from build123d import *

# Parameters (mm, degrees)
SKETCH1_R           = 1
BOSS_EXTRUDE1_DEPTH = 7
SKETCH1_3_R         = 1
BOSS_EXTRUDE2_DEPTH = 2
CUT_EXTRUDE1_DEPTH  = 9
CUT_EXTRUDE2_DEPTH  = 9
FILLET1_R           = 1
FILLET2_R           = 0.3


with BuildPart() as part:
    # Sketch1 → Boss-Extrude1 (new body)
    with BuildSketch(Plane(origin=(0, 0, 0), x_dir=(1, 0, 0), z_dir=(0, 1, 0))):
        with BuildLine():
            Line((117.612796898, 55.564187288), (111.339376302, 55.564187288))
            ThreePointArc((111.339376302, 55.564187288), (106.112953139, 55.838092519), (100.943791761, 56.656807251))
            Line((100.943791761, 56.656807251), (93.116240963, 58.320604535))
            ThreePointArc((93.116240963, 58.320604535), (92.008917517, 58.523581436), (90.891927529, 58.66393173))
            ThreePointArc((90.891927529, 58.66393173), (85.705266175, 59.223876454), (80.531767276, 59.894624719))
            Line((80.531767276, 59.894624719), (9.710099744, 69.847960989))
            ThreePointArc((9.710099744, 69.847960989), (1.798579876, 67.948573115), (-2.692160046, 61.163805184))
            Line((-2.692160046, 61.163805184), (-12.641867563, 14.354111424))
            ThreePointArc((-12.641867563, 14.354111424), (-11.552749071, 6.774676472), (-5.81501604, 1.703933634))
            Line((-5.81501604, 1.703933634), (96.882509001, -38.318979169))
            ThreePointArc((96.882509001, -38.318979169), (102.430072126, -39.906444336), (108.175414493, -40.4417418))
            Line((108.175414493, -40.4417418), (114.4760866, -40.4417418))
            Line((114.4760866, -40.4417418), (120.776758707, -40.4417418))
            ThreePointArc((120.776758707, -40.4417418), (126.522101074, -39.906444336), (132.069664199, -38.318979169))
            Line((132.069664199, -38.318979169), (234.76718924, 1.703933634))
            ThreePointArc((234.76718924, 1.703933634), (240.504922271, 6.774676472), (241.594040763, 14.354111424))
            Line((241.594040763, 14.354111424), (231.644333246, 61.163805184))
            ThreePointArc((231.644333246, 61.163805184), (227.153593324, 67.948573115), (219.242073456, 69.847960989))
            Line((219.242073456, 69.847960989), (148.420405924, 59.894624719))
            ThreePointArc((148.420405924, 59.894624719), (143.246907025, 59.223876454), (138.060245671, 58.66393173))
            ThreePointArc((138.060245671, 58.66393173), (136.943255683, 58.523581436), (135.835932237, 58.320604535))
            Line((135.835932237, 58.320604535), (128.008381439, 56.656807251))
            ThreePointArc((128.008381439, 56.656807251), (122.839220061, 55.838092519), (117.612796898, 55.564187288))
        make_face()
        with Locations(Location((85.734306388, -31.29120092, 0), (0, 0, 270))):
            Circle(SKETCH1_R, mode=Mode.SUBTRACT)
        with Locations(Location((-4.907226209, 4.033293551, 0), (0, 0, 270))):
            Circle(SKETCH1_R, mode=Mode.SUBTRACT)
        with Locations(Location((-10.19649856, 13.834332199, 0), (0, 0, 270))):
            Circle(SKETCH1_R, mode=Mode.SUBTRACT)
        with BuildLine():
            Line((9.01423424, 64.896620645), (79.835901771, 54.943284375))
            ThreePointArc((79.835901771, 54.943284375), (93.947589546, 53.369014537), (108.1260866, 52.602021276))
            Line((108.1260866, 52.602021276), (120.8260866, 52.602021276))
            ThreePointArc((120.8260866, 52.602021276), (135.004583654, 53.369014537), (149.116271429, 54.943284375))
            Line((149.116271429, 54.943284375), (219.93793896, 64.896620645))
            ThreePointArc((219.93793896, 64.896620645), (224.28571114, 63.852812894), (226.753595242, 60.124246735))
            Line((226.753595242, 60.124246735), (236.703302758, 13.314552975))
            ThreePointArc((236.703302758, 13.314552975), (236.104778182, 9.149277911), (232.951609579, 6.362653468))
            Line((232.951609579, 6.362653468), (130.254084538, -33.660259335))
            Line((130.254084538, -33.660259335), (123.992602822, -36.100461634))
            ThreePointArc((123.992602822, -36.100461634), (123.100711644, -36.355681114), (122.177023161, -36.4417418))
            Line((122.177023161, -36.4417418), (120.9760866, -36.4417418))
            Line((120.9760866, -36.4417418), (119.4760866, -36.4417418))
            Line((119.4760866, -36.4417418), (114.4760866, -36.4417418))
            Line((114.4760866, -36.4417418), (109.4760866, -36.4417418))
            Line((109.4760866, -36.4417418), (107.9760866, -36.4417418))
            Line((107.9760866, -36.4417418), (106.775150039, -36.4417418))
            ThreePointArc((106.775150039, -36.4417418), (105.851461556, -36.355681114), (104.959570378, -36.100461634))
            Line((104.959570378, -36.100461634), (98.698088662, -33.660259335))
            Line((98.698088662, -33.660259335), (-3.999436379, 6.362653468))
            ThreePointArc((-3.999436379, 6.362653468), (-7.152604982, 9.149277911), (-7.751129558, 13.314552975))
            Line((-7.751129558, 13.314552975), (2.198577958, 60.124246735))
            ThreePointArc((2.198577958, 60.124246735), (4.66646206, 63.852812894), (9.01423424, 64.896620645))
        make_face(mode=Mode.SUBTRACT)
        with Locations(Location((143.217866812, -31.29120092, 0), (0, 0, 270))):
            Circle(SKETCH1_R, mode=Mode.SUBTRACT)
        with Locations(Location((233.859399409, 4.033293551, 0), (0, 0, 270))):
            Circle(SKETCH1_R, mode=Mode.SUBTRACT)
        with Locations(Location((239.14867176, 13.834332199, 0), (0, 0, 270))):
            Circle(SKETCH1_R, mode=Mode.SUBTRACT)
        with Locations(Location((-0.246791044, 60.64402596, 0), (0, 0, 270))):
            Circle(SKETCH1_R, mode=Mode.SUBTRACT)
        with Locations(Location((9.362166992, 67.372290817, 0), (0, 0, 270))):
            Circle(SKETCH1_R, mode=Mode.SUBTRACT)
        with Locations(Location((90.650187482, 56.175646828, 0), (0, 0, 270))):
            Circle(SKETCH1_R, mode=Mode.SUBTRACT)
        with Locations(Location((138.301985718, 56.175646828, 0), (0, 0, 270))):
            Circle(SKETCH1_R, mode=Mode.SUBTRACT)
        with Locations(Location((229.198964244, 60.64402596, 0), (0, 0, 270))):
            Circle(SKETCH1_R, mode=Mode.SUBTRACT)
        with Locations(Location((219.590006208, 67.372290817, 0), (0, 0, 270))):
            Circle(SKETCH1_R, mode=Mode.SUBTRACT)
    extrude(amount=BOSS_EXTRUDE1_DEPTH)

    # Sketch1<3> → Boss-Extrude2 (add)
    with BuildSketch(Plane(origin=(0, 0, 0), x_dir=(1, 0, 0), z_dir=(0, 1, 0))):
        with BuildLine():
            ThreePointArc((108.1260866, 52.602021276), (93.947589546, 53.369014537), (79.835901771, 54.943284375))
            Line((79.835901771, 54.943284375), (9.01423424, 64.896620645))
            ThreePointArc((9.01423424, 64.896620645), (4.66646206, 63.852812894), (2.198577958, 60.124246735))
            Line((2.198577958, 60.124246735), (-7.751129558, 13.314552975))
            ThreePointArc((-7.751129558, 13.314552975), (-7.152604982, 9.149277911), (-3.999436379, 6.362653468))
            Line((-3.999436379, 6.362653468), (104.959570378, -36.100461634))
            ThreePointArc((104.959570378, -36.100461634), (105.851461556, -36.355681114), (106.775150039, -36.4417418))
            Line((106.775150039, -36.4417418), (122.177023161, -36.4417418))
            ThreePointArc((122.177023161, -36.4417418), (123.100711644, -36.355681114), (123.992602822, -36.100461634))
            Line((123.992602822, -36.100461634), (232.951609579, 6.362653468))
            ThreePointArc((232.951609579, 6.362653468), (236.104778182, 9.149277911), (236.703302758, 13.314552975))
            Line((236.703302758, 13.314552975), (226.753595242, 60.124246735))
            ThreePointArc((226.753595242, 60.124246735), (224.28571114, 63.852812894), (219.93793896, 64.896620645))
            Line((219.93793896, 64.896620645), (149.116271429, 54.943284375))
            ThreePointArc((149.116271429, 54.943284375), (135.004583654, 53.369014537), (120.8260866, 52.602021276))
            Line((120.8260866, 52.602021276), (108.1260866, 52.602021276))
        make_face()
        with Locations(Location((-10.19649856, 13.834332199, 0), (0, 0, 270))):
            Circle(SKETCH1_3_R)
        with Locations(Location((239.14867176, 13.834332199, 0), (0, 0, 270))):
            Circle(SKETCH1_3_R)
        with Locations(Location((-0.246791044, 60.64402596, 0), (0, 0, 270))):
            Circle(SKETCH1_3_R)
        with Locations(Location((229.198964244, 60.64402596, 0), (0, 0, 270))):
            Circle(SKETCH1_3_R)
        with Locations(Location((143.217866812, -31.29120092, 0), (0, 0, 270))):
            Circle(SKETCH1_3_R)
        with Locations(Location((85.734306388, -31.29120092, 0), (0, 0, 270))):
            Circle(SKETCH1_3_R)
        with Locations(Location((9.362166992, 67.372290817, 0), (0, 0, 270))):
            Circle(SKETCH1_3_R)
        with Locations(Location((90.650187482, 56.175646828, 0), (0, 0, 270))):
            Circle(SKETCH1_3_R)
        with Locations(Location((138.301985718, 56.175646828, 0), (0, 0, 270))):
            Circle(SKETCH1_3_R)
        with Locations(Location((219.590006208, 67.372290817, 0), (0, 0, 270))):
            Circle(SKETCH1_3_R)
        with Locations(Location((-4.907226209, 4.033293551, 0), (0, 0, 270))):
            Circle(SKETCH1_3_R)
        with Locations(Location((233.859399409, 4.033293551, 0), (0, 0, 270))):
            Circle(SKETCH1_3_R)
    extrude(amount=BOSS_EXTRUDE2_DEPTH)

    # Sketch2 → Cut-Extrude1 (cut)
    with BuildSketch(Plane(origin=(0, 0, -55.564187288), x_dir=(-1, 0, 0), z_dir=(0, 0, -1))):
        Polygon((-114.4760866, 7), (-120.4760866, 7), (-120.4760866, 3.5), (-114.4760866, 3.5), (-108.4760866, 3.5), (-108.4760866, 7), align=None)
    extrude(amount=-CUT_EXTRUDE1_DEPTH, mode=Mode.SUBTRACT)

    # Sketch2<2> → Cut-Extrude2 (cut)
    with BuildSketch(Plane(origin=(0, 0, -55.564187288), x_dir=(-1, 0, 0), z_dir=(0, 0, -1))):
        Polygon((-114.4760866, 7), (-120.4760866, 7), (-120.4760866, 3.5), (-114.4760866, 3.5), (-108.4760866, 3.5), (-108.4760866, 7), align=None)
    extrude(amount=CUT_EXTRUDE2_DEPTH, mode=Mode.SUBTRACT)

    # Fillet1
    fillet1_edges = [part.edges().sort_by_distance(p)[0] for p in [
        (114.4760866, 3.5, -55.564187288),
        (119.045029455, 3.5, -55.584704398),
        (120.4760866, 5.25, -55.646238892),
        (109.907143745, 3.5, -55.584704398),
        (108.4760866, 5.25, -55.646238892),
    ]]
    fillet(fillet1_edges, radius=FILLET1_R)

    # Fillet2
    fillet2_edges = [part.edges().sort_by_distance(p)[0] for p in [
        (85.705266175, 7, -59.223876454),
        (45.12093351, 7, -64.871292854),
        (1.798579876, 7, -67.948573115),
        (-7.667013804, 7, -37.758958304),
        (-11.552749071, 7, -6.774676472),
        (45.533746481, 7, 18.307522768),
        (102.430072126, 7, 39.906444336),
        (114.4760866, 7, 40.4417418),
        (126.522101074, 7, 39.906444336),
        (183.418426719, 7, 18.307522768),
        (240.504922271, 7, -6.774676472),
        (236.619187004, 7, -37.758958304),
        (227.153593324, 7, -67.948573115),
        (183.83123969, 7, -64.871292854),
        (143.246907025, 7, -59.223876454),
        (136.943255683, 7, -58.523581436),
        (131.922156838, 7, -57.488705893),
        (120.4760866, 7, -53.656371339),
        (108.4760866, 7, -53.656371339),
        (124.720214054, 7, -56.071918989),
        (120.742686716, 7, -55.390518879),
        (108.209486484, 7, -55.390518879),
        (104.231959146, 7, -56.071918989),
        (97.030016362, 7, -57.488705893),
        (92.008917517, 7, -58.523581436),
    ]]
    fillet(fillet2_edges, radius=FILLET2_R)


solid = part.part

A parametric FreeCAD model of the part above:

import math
import FreeCAD as App
import Part
import Sketcher

V = App.Vector
Q = App.Units.Quantity


def edges_at(feature, points):
    """Names of the edges that pass closest to the given points."""
    edges = feature.Shape.Edges
    near = lambda p: min(range(len(edges)), key=lambda i: edges[i].distToShape(Part.Vertex(*p))[0])
    return sorted({f"Edge{near(p) + 1}" for p in points})

doc = App.newDocument("Part")
body = doc.addObject("PartDesign::Body", "Body")

# Sketch on XZ plane
sketch1 = body.newObject("Sketcher::SketchObject", "Sketch")
sketch1.AttachmentSupport = (doc.getObject("XZ_Plane"), [""])
sketch1.MapMode = "FlatFace"
sketch1.addGeometry([
    Part.LineSegment(V(117.6, -55.6, 0), V(111.3, -55.6, 0)),  # 0
    Part.ArcOfCircle(Part.Circle(V(111.3, -105.6, 0), V(0, 0, 1), 50), math.radians(90), math.radians(102)),  # 1
    Part.LineSegment(V(100.9, -56.7, 0), V(93.1, -58.3, 0)),  # 2
    Part.ArcOfCircle(Part.Circle(V(89, -38.8, 0), V(0, 0, 1), 20), math.radians(-84.45), math.radians(-78)),  # 3
    Part.ArcOfCircle(Part.Circle(V(114.5, -301.4, 0), V(0, 0, 1), 243.9), math.radians(95.55), math.radians(98)),  # 4
    Part.LineSegment(V(80.5, -59.9, 0), V(9.7, -69.8, 0)),  # 5
    Part.ArcOfCircle(Part.Circle(V(8.2, -58.9, 0), V(0, 0, 1), 11.1), math.radians(-168), math.radians(-82)),  # 6
    Part.LineSegment(V(-2.7, -61.2, 0), V(-12.6, -14.4, 0)),  # 7
    Part.ArcOfCircle(Part.Circle(V(-1.8, -12, 0), V(0, 0, 1), 11.1), math.radians(111), math.radians(192)),  # 8
    Part.LineSegment(V(-5.8, -1.7, 0), V(96.9, 38.3, 0)),  # 9
    Part.ArcOfCircle(Part.Circle(V(108.2, 9.3, 0), V(0, 0, 1), 31.1), math.radians(90), math.radians(111)),  # 10
    Part.LineSegment(V(108.2, 40.4, 0), V(120.8, 40.4, 0)),  # 11
    Part.ArcOfCircle(Part.Circle(V(120.8, 9.3, 0), V(0, 0, 1), 31.1), math.radians(69), math.radians(90)),  # 12
    Part.LineSegment(V(132.1, 38.3, 0), V(234.8, -1.7, 0)),  # 13
    Part.ArcOfCircle(Part.Circle(V(230.7, -12, 0), V(0, 0, 1), 11.1), math.radians(-12), math.radians(69)),  # 14
    Part.LineSegment(V(241.6, -14.4, 0), V(231.6, -61.2, 0)),  # 15
    Part.ArcOfCircle(Part.Circle(V(220.8, -58.9, 0), V(0, 0, 1), 11.1), math.radians(-98), math.radians(-12)),  # 16
    Part.LineSegment(V(219.2, -69.8, 0), V(148.4, -59.9, 0)),  # 17
    Part.ArcOfCircle(Part.Circle(V(114.5, -301.4, 0), V(0, 0, 1), 243.9), math.radians(82), math.radians(84.45)),  # 18
    Part.ArcOfCircle(Part.Circle(V(140, -38.8, 0), V(0, 0, 1), 20), math.radians(-102), math.radians(-95.55)),  # 19
    Part.LineSegment(V(135.8, -58.3, 0), V(128, -56.7, 0)),  # 20
    Part.ArcOfCircle(Part.Circle(V(117.6, -105.6, 0), V(0, 0, 1), 50), math.radians(78), math.radians(90)),  # 21
    Part.Circle(V(85.7, 31.3, 0), V(0, 0, 1), 1),  # 22
    Part.Circle(V(-4.9, -4, 0), V(0, 0, 1), 1),  # 23
    Part.Circle(V(-10.2, -13.8, 0), V(0, 0, 1), 1),  # 24
    Part.ArcOfCircle(Part.Circle(V(8.2, -58.9, 0), V(0, 0, 1), 6.1), math.radians(-168), math.radians(-82)),  # 25
    Part.LineSegment(V(9, -64.9, 0), V(79.8, -54.9, 0)),  # 26
    Part.ArcOfCircle(Part.Circle(V(114.5, -301.4, 0), V(0, 0, 1), 248.9), math.radians(91.46), math.radians(98)),  # 27
    Part.LineSegment(V(108.1, -52.6, 0), V(120.8, -52.6, 0)),  # 28
    Part.ArcOfCircle(Part.Circle(V(114.5, -301.4, 0), V(0, 0, 1), 248.9), math.radians(82), math.radians(88.54)),  # 29
    Part.LineSegment(V(149.1, -54.9, 0), V(219.9, -64.9, 0)),  # 30
    Part.ArcOfCircle(Part.Circle(V(220.8, -58.9, 0), V(0, 0, 1), 6.1), math.radians(-98), math.radians(-12)),  # 31
    Part.LineSegment(V(226.8, -60.1, 0), V(236.7, -13.3, 0)),  # 32
    Part.ArcOfCircle(Part.Circle(V(230.7, -12, 0), V(0, 0, 1), 6.1), math.radians(-12), math.radians(69)),  # 33
    Part.LineSegment(V(233, -6.4, 0), V(130.3, 33.7, 0)),  # 34
    Part.LineSegment(V(130.3, 33.7, 0), V(124, 36.1, 0)),  # 35
    Part.ArcOfCircle(Part.Circle(V(122.2, 31.4, 0), V(0, 0, 1), 5), math.radians(69), math.radians(90)),  # 36
    Part.LineSegment(V(122.2, 36.4, 0), V(106.8, 36.4, 0)),  # 37
    Part.ArcOfCircle(Part.Circle(V(106.8, 31.4, 0), V(0, 0, 1), 5), math.radians(90), math.radians(111)),  # 38
    Part.LineSegment(V(105, 36.1, 0), V(98.7, 33.7, 0)),  # 39
    Part.LineSegment(V(98.7, 33.7, 0), V(-4, -6.4, 0)),  # 40
    Part.ArcOfCircle(Part.Circle(V(-1.8, -12, 0), V(0, 0, 1), 6.1), math.radians(111), math.radians(192)),  # 41
    Part.LineSegment(V(-7.8, -13.3, 0), V(2.2, -60.1, 0)),  # 42
    Part.Circle(V(143.2, 31.3, 0), V(0, 0, 1), 1),  # 43
    Part.Circle(V(233.9, -4, 0), V(0, 0, 1), 1),  # 44
    Part.Circle(V(239.1, -13.8, 0), V(0, 0, 1), 1),  # 45
    Part.Circle(V(-0.2, -60.6, 0), V(0, 0, 1), 1),  # 46
    Part.Circle(V(9.4, -67.4, 0), V(0, 0, 1), 1),  # 47
    Part.Circle(V(90.7, -56.2, 0), V(0, 0, 1), 1),  # 48
    Part.Circle(V(138.3, -56.2, 0), V(0, 0, 1), 1),  # 49
    Part.Circle(V(229.2, -60.6, 0), V(0, 0, 1), 1),  # 50
    Part.Circle(V(219.6, -67.4, 0), V(0, 0, 1), 1),  # 51
], False)
sketch1.addConstraint([
    Sketcher.Constraint("Tangent", 0, 2, 1, 1),
    Sketcher.Constraint("Tangent", 1, 2, 2, 1),
    Sketcher.Constraint("Tangent", 2, 2, 3, 2),
    Sketcher.Constraint("Tangent", 3, 1, 4, 1),
    Sketcher.Constraint("Tangent", 4, 2, 5, 1),
    Sketcher.Constraint("Tangent", 5, 2, 6, 2),
    Sketcher.Constraint("Tangent", 6, 1, 7, 1),
    Sketcher.Constraint("Tangent", 7, 2, 8, 2),
    Sketcher.Constraint("Tangent", 8, 1, 9, 1),
    Sketcher.Constraint("Tangent", 9, 2, 10, 2),
    Sketcher.Constraint("Tangent", 10, 1, 11, 1),
    Sketcher.Constraint("Tangent", 11, 2, 12, 2),
    Sketcher.Constraint("Tangent", 12, 1, 13, 1),
    Sketcher.Constraint("Tangent", 13, 2, 14, 2),
    Sketcher.Constraint("Tangent", 14, 1, 15, 1),
    Sketcher.Constraint("Tangent", 15, 2, 16, 2),
    Sketcher.Constraint("Tangent", 16, 1, 17, 1),
    Sketcher.Constraint("Tangent", 17, 2, 18, 1),
    Sketcher.Constraint("Tangent", 18, 2, 19, 2),
    Sketcher.Constraint("Tangent", 19, 1, 20, 1),
    Sketcher.Constraint("Tangent", 20, 2, 21, 1),
    Sketcher.Constraint("Tangent", 21, 2, 0, 1),
    Sketcher.Constraint("Tangent", 25, 2, 26, 1),
    Sketcher.Constraint("Tangent", 26, 2, 27, 2),
    Sketcher.Constraint("Coincident", 27, 1, 28, 1),
    Sketcher.Constraint("Coincident", 28, 2, 29, 2),
    Sketcher.Constraint("Tangent", 29, 1, 30, 1),
    Sketcher.Constraint("Tangent", 30, 2, 31, 1),
    Sketcher.Constraint("Tangent", 31, 2, 32, 1),
    Sketcher.Constraint("Tangent", 32, 2, 33, 1),
    Sketcher.Constraint("Tangent", 33, 2, 34, 1),
    Sketcher.Constraint("Coincident", 34, 2, 35, 1),
    Sketcher.Constraint("Tangent", 35, 2, 36, 1),
    Sketcher.Constraint("Tangent", 36, 2, 37, 1),
    Sketcher.Constraint("Tangent", 37, 2, 38, 1),
    Sketcher.Constraint("Tangent", 38, 2, 39, 1),
    Sketcher.Constraint("Coincident", 39, 2, 40, 1),
    Sketcher.Constraint("Tangent", 40, 2, 41, 1),
    Sketcher.Constraint("Tangent", 41, 2, 42, 1),
    Sketcher.Constraint("Tangent", 42, 2, 25, 1),
    Sketcher.Constraint("Horizontal", 0),
    Sketcher.Constraint("Horizontal", 11),
    Sketcher.Constraint("Horizontal", 28),
    Sketcher.Constraint("Horizontal", 37),
    Sketcher.Constraint("Coincident", 18, 3, 4, 3),
    Sketcher.Constraint("Coincident", 25, 3, 6, 3),
    Sketcher.Constraint("Coincident", 27, 3, 4, 3),
    Sketcher.Constraint("Coincident", 29, 3, 4, 3),
    Sketcher.Constraint("Coincident", 31, 3, 16, 3),
    Sketcher.Constraint("Coincident", 33, 3, 14, 3),
    Sketcher.Constraint("Coincident", 41, 3, 8, 3),
    Sketcher.Constraint("Equal", 6, 8),
    Sketcher.Constraint("Equal", 10, 12),
    Sketcher.Constraint("Equal", 8, 14),
    Sketcher.Constraint("Equal", 14, 16),
    Sketcher.Constraint("Equal", 4, 18),
    Sketcher.Constraint("Equal", 3, 19),
    Sketcher.Constraint("Equal", 1, 21),
    Sketcher.Constraint("Equal", 22, 23),
    Sketcher.Constraint("Equal", 23, 24),
    Sketcher.Constraint("Equal", 27, 29),
    Sketcher.Constraint("Equal", 25, 31),
    Sketcher.Constraint("Equal", 31, 33),
    Sketcher.Constraint("Equal", 36, 38),
    Sketcher.Constraint("Equal", 33, 41),
    Sketcher.Constraint("Equal", 24, 43),
    Sketcher.Constraint("Equal", 43, 44),
    Sketcher.Constraint("Equal", 44, 45),
    Sketcher.Constraint("Equal", 45, 46),
    Sketcher.Constraint("Equal", 46, 47),
    Sketcher.Constraint("Equal", 47, 48),
    Sketcher.Constraint("Equal", 48, 49),
    Sketcher.Constraint("Equal", 49, 50),
    Sketcher.Constraint("Equal", 50, 51),
    Sketcher.Constraint("Perpendicular", 2, 7),
    Sketcher.Constraint("Perpendicular", 15, 20),
    Sketcher.Constraint("Parallel", 5, 26),
    Sketcher.Constraint("Parallel", 13, 34),
    Sketcher.Constraint("Parallel", 34, 35),
    Sketcher.Constraint("Parallel", 9, 39),
    Sketcher.Constraint("Parallel", 39, 40),
    Sketcher.Constraint("Horizontal", 8, 3, 14, 3),
    Sketcher.Constraint("Horizontal", 6, 3, 16, 3),
    Sketcher.Constraint("Horizontal", 3, 3, 19, 3),
    Sketcher.Constraint("Horizontal", 22, 3, 43, 3),
    Sketcher.Constraint("Horizontal", 23, 3, 44, 3),
    Sketcher.Constraint("Horizontal", 24, 3, 45, 3),
    Sketcher.Constraint("Horizontal", 48, 3, 49, 3),
    Sketcher.Constraint("Horizontal", 46, 3, 50, 3),
    Sketcher.Constraint("Horizontal", 47, 3, 51, 3),
    Sketcher.Constraint("Horizontal", 9, 2, 12, 1),
    Sketcher.Constraint("Horizontal", 7, 2, 14, 1),
    Sketcher.Constraint("Horizontal", 34, 2, 39, 2),
    Sketcher.Constraint("Equal", 5, 17),
    Sketcher.Constraint("Equal", 13, 34),
    Sketcher.Constraint("Diameter", 22, 2.0),
    Sketcher.Constraint("Radius", 1, 50.0),
    Sketcher.Constraint("Radius", 3, 20.0),
    Sketcher.Constraint("Radius", 36, 5.0),
    Sketcher.Constraint("Radius", 4, 243.899998),
    Sketcher.Constraint("Radius", 6, 11.1),
    Sketcher.Constraint("Radius", 10, 31.1),
    Sketcher.Constraint("Radius", 25, 6.1),
    Sketcher.Constraint("Angle", 2, Q("-168 deg")),
    Sketcher.Constraint("Angle", 5, Q("-172 deg")),
    Sketcher.Constraint("DistanceX", 28, 1, 28, 2, 12.7),
    Sketcher.Constraint("DistanceX", 0, 2, 0, 1, 6.273421),
    Sketcher.Constraint("DistanceY", -1, 1, 22, 3, 31.291201),
    Sketcher.Constraint("DistanceX", 24, 3, -1, 1, 10.196499),
    Sketcher.Constraint("DistanceX", -1, 1, 44, 3, 233.859399),
    Sketcher.Constraint("DistanceX", -1, 1, 5, 2, 9.7101),
    Sketcher.Constraint("DistanceX", -1, 1, 26, 2, 79.835902),
    Sketcher.Constraint("Distance", 7, 47.85545),
    Sketcher.Constraint("DistanceX", 11, 1, 11, 2, 12.601344),
    Sketcher.Constraint("DistanceX", 37, 2, 37, 1, 15.401873),
    Sketcher.Constraint("DistanceY", 8, 3, -1, 1, 12.046292),
    Sketcher.Constraint("DistanceY", -1, 1, 10, 3, 9.341742),
    Sketcher.Constraint("DistanceX", -1, 1, 45, 3, 239.148672),
    Sketcher.Constraint("DistanceX", 46, 3, -1, 1, 0.246791),
    Sketcher.Constraint("DistanceY", 47, 3, -1, 1, 67.372291),
    Sketcher.Constraint("DistanceX", -1, 1, 2, 2, 93.116241),
    Sketcher.Constraint("DistanceX", -1, 1, 22, 3, 85.734306),
    Sketcher.Constraint("DistanceX", 23, 3, -1, 1, 4.907226),
    Sketcher.Constraint("DistanceY", 23, 3, -1, 1, 4.033294),
    Sketcher.Constraint("DistanceY", 24, 3, -1, 1, 13.834332),
    Sketcher.Constraint("DistanceX", -1, 1, 43, 3, 143.217867),
    Sketcher.Constraint("DistanceY", 46, 3, -1, 1, 60.644026),
    Sketcher.Constraint("DistanceX", -1, 1, 47, 3, 9.362167),
    Sketcher.Constraint("DistanceX", -1, 1, 48, 3, 90.650187),
    Sketcher.Constraint("DistanceY", 48, 3, -1, 1, 56.175647),
    Sketcher.Constraint("DistanceX", -1, 1, 49, 3, 138.301986),
    Sketcher.Constraint("DistanceX", -1, 1, 50, 3, 229.198964),
    Sketcher.Constraint("DistanceX", -1, 1, 51, 3, 219.590006),
])
pad1 = body.newObject("PartDesign::Pad", "Pad")
pad1.Profile = sketch1
pad1.Length = 7
pad1.Reversed = True

# Sketch on XZ plane
sketch2 = body.newObject("Sketcher::SketchObject", "Sketch001")
sketch2.AttachmentSupport = (doc.getObject("XZ_Plane"), [""])
sketch2.MapMode = "FlatFace"
sketch2.addGeometry([
    Part.ArcOfCircle(Part.Circle(V(114.476087, -301.421007, 0), V(0, 0, 1), 248.9), math.radians(91.461903), math.radians(98)),  # 0
    Part.LineSegment(V(79.835902, -54.943284, 0), V(9.014234, -64.896621, 0)),  # 1
    Part.ArcOfCircle(Part.Circle(V(8.165278, -58.855985, 0), V(0, 0, 1), 6.1), math.radians(-168), math.radians(-82)),  # 2
    Part.LineSegment(V(2.198578, -60.124247, 0), V(-7.75113, -13.314553, 0)),  # 3
    Part.ArcOfCircle(Part.Circle(V(-1.784429, -12.046292, 0), V(0, 0, 1), 6.1), math.radians(111.29168), math.radians(192)),  # 4
    Part.LineSegment(V(-3.999436, -6.362653, 0), V(104.95957, 36.100462, 0)),  # 5
    Part.ArcOfCircle(Part.Circle(V(106.77515, 31.441742, 0), V(0, 0, 1), 5), math.radians(90), math.radians(111.29168)),  # 6
    Part.LineSegment(V(106.77515, 36.441742, 0), V(122.177023, 36.441742, 0)),  # 7
    Part.ArcOfCircle(Part.Circle(V(122.177023, 31.441742, 0), V(0, 0, 1), 5), math.radians(68.70832), math.radians(90)),  # 8
    Part.LineSegment(V(123.992603, 36.100462, 0), V(232.95161, -6.362653, 0)),  # 9
    Part.ArcOfCircle(Part.Circle(V(230.736602, -12.046292, 0), V(0, 0, 1), 6.1), math.radians(-12), math.radians(68.70832)),  # 10
    Part.LineSegment(V(236.703303, -13.314553, 0), V(226.753595, -60.124247, 0)),  # 11
    Part.ArcOfCircle(Part.Circle(V(220.786895, -58.855985, 0), V(0, 0, 1), 6.1), math.radians(-98), math.radians(-12)),  # 12
    Part.LineSegment(V(219.937939, -64.896621, 0), V(149.116271, -54.943284, 0)),  # 13
    Part.ArcOfCircle(Part.Circle(V(114.476087, -301.421007, 0), V(0, 0, 1), 248.9), math.radians(82), math.radians(88.538097)),  # 14
    Part.LineSegment(V(120.826087, -52.602021, 0), V(108.126087, -52.602021, 0)),  # 15
    Part.Circle(V(-10.196499, -13.834332, 0), V(0, 0, 1), 1),  # 16
    Part.Circle(V(239.148672, -13.834332, 0), V(0, 0, 1), 1),  # 17
    Part.Circle(V(-0.246791, -60.644026, 0), V(0, 0, 1), 1),  # 18
    Part.Circle(V(229.198964, -60.644026, 0), V(0, 0, 1), 1),  # 19
    Part.Circle(V(143.217867, 31.291201, 0), V(0, 0, 1), 1),  # 20
    Part.Circle(V(85.734306, 31.291201, 0), V(0, 0, 1), 1),  # 21
    Part.Circle(V(9.362167, -67.372291, 0), V(0, 0, 1), 1),  # 22
    Part.Circle(V(90.650187, -56.175647, 0), V(0, 0, 1), 1),  # 23
    Part.Circle(V(138.301986, -56.175647, 0), V(0, 0, 1), 1),  # 24
    Part.Circle(V(219.590006, -67.372291, 0), V(0, 0, 1), 1),  # 25
    Part.Circle(V(-4.907226, -4.033294, 0), V(0, 0, 1), 1),  # 26
    Part.Circle(V(233.859399, -4.033294, 0), V(0, 0, 1), 1),  # 27
], False)
sketch2.addConstraint([
    Sketcher.Constraint("Coincident", 0, 2, 1, 1),
    Sketcher.Constraint("Coincident", 1, 2, 2, 2),
    Sketcher.Constraint("Coincident", 2, 1, 3, 1),
    Sketcher.Constraint("Coincident", 3, 2, 4, 2),
    Sketcher.Constraint("Coincident", 4, 1, 5, 1),
    Sketcher.Constraint("Coincident", 5, 2, 6, 2),
    Sketcher.Constraint("Coincident", 6, 1, 7, 1),
    Sketcher.Constraint("Coincident", 7, 2, 8, 2),
    Sketcher.Constraint("Coincident", 8, 1, 9, 1),
    Sketcher.Constraint("Coincident", 9, 2, 10, 2),
    Sketcher.Constraint("Coincident", 10, 1, 11, 1),
    Sketcher.Constraint("Coincident", 11, 2, 12, 2),
    Sketcher.Constraint("Coincident", 12, 1, 13, 1),
    Sketcher.Constraint("Coincident", 13, 2, 14, 1),
    Sketcher.Constraint("Coincident", 14, 2, 15, 1),
    Sketcher.Constraint("Coincident", 15, 2, 0, 1),
    Sketcher.Constraint("Horizontal", 7),
    Sketcher.Constraint("Horizontal", 15),
    Sketcher.Constraint("Coincident", 14, 3, 0, 3),
    Sketcher.Constraint("Diameter", 16, 2.0),
    Sketcher.Constraint("Diameter", 17, 2.0),
    Sketcher.Constraint("Diameter", 18, 2.0),
    Sketcher.Constraint("Diameter", 19, 2.0),
    Sketcher.Constraint("Diameter", 20, 2.0),
    Sketcher.Constraint("Diameter", 21, 2.0),
    Sketcher.Constraint("Diameter", 22, 2.0),
    Sketcher.Constraint("Diameter", 23, 2.0),
    Sketcher.Constraint("Diameter", 24, 2.0),
    Sketcher.Constraint("Diameter", 25, 2.0),
    Sketcher.Constraint("Diameter", 26, 2.0),
    Sketcher.Constraint("Diameter", 27, 2.0),
    Sketcher.Constraint("Radius", 6, 5.0),
    Sketcher.Constraint("Radius", 8, 5.0),
    Sketcher.Constraint("Radius", 0, 248.9),
    Sketcher.Constraint("Radius", 2, 6.1),
    Sketcher.Constraint("Radius", 4, 6.1),
    Sketcher.Constraint("Radius", 10, 6.1),
    Sketcher.Constraint("Radius", 12, 6.1),
    Sketcher.Constraint("Radius", 14, 248.9),
    Sketcher.Constraint("DistanceX", 15, 2, 15, 1, 12.7),
    Sketcher.Constraint("DistanceY", 22, 3, 4, 3, 55.325999),
    Sketcher.Constraint("DistanceY", 25, 3, 10, 3, 55.325999),
    Sketcher.Constraint("DistanceY", 4, 3, 26, 3, 8.012998),
    Sketcher.Constraint("DistanceY", 10, 3, 27, 3, 8.012998),
    Sketcher.Constraint("DistanceX", 16, 3, -1, 1, 10.196499),
    Sketcher.Constraint("DistanceY", -1, 1, 20, 3, 31.291201),
    Sketcher.Constraint("DistanceY", -1, 1, 21, 3, 31.291201),
    Sketcher.Constraint("DistanceX", -1, 1, 27, 3, 233.859399),
    Sketcher.Constraint("DistanceX", -1, 1, 0, 2, 79.835902),
    Sketcher.Constraint("DistanceX", 23, 3, 24, 3, 47.651798),
    Sketcher.Constraint("DistanceY", 2, 3, 0, 2, 3.912701),
    Sketcher.Constraint("DistanceX", 2, 1, 2, 3, 5.9667),
    Sketcher.Constraint("DistanceX", 3, 2, 4, 3, 5.9667),
    Sketcher.Constraint("DistanceY", 3, 2, 4, 1, 6.9519),
    Sketcher.Constraint("DistanceX", 10, 3, 10, 1, 5.9667),
    Sketcher.Constraint("DistanceY", 10, 1, 9, 2, 6.9519),
    Sketcher.Constraint("DistanceX", 12, 3, 11, 2, 5.9667),
    Sketcher.Constraint("DistanceX", 14, 2, 24, 3, 17.475899),
    Sketcher.Constraint("Distance", 3, 47.85545),
    Sketcher.Constraint("Distance", 5, 116.940931),
    Sketcher.Constraint("Distance", 9, 116.940931),
    Sketcher.Constraint("Distance", 11, 47.85545),
    Sketcher.Constraint("DistanceX", 7, 1, 7, 2, 15.401873),
    Sketcher.Constraint("DistanceX", -1, 1, 2, 3, 8.165278),
    Sketcher.Constraint("DistanceX", 4, 3, -1, 1, 1.784429),
    Sketcher.Constraint("DistanceY", 4, 3, -1, 1, 12.046292),
    Sketcher.Constraint("DistanceX", -1, 1, 6, 3, 106.77515),
    Sketcher.Constraint("DistanceY", -1, 1, 6, 3, 31.441742),
    Sketcher.Constraint("DistanceY", 10, 3, -1, 1, 12.046292),
    Sketcher.Constraint("DistanceX", -1, 1, 17, 3, 239.148672),
    Sketcher.Constraint("DistanceX", 18, 3, -1, 1, 0.246791),
    Sketcher.Constraint("DistanceY", 1, 2, -1, 1, 64.896621),
    Sketcher.Constraint("DistanceX", -1, 1, 6, 1, 106.77515),
    Sketcher.Constraint("DistanceY", -1, 1, 8, 1, 36.100462),
    Sketcher.Constraint("DistanceX", -1, 1, 9, 2, 232.95161),
    Sketcher.Constraint("DistanceX", -1, 1, 12, 1, 219.937939),
    Sketcher.Constraint("DistanceY", 12, 1, -1, 1, 64.896621),
    Sketcher.Constraint("DistanceX", -1, 1, 13, 2, 149.116271),
    Sketcher.Constraint("DistanceY", 14, 2, -1, 1, 52.602021),
    Sketcher.Constraint("DistanceY", 16, 3, 4, 3, 1.788041),
    Sketcher.Constraint("DistanceY", 17, 3, 10, 3, 1.788041),
    Sketcher.Constraint("DistanceY", 18, 3, 2, 3, 1.788041),
    Sketcher.Constraint("DistanceX", 12, 3, 19, 3, 8.412069),
    Sketcher.Constraint("DistanceY", 19, 3, 12, 3, 1.788041),
    Sketcher.Constraint("DistanceX", 20, 3, 12, 3, 77.569028),
    Sketcher.Constraint("DistanceX", 21, 3, 20, 3, 57.48356),
    Sketcher.Constraint("DistanceX", 2, 3, 22, 3, 1.196889),
    Sketcher.Constraint("DistanceY", 2, 3, 23, 3, 2.680339),
    Sketcher.Constraint("DistanceY", 12, 3, 24, 3, 2.680339),
    Sketcher.Constraint("DistanceX", 25, 3, 12, 3, 1.196889),
    Sketcher.Constraint("DistanceX", 26, 3, 4, 1, 0.90779),
])
pad2 = body.newObject("PartDesign::Pad", "Pad001")
pad2.Profile = sketch2
pad2.Length = 2
pad2.Reversed = True

# Sketch on XY plane
sketch3 = body.newObject("Sketcher::SketchObject", "Sketch002")
sketch3.AttachmentSupport = (doc.getObject("XY_Plane"), [""])
sketch3.MapMode = "FlatFace"
sketch3.AttachmentOffset = App.Placement(V(0, 0, -55.564187), App.Rotation())
sketch3.addGeometry([
    Part.LineSegment(V(120.5, 7, 0), V(120.5, 3.5, 0)),
    Part.LineSegment(V(120.5, 3.5, 0), V(108.5, 3.5, 0)),
    Part.LineSegment(V(108.5, 3.5, 0), V(108.5, 7, 0)),
    Part.LineSegment(V(108.5, 7, 0), V(120.5, 7, 0)),
], False)
sketch3.addConstraint([
    Sketcher.Constraint("Coincident", 0, 2, 1, 1),
    Sketcher.Constraint("Coincident", 1, 2, 2, 1),
    Sketcher.Constraint("Coincident", 2, 2, 3, 1),
    Sketcher.Constraint("Coincident", 3, 2, 0, 1),
    Sketcher.Constraint("Vertical", 0),
    Sketcher.Constraint("Horizontal", 1),
    Sketcher.Constraint("Vertical", 2),
    Sketcher.Constraint("Horizontal", 3),
    Sketcher.Constraint("DistanceX", 1, 2, 1, 1, 12.0),
    Sketcher.Constraint("DistanceY", 0, 2, 0, 1, 3.5),
    Sketcher.Constraint("DistanceY", -1, 1, 2, 2, 7.0),
    Sketcher.Constraint("DistanceX", -1, 1, 0, 2, 120.476087),
])
pocket1 = body.newObject("PartDesign::Pocket", "Pocket")
pocket1.Profile = sketch3
pocket1.Length = 9
pocket1.Reversed = True

# Sketch on XY plane
sketch4 = body.newObject("Sketcher::SketchObject", "Sketch003")
sketch4.AttachmentSupport = (doc.getObject("XY_Plane"), [""])
sketch4.MapMode = "FlatFace"
sketch4.AttachmentOffset = App.Placement(V(0, 0, -55.564187), App.Rotation())
sketch4.addGeometry([
    Part.LineSegment(V(120.5, 7, 0), V(120.5, 3.5, 0)),
    Part.LineSegment(V(120.5, 3.5, 0), V(108.5, 3.5, 0)),
    Part.LineSegment(V(108.5, 3.5, 0), V(108.5, 7, 0)),
    Part.LineSegment(V(108.5, 7, 0), V(120.5, 7, 0)),
], False)
sketch4.addConstraint([
    Sketcher.Constraint("Coincident", 0, 2, 1, 1),
    Sketcher.Constraint("Coincident", 1, 2, 2, 1),
    Sketcher.Constraint("Coincident", 2, 2, 3, 1),
    Sketcher.Constraint("Coincident", 3, 2, 0, 1),
    Sketcher.Constraint("Vertical", 0),
    Sketcher.Constraint("Horizontal", 1),
    Sketcher.Constraint("Vertical", 2),
    Sketcher.Constraint("Horizontal", 3),
    Sketcher.Constraint("DistanceX", 1, 2, 1, 1, 12.0),
    Sketcher.Constraint("DistanceY", 0, 2, 0, 1, 3.5),
    Sketcher.Constraint("DistanceY", -1, 1, 2, 2, 7.0),
    Sketcher.Constraint("DistanceX", -1, 1, 0, 2, 120.476087),
])
pocket2 = body.newObject("PartDesign::Pocket", "Pocket001")
pocket2.Profile = sketch4
pocket2.Length = 9
doc.recompute()

fillet = body.newObject("PartDesign::Fillet", "Fillet")
fillet.Base = (pocket2, edges_at(pocket2, [
    (114.476, 3.5, -55.564),
    (119.045, 3.5, -55.585),
    (120.476, 5.25, -55.646),
    (109.907, 3.5, -55.585),
    (108.476, 5.25, -55.646),
]))
fillet.Radius = 1
doc.recompute()

fillet2 = body.newObject("PartDesign::Fillet", "Fillet001")
fillet2.Base = (fillet, edges_at(fillet, [
    (85.705, 7, -59.224),
    (45.121, 7, -64.871),
    (1.799, 7, -67.949),
    (-7.667, 7, -37.759),
    (-11.553, 7, -6.775),
    (45.534, 7, 18.308),
    (102.43, 7, 39.906),
    (114.476, 7, 40.442),
    (126.522, 7, 39.906),
    (183.418, 7, 18.308),
    (240.505, 7, -6.775),
    (236.619, 7, -37.759),
    (227.154, 7, -67.949),
    (183.831, 7, -64.871),
    (143.247, 7, -59.224),
    (136.943, 7, -58.524),
    (131.922, 7, -57.489),
    (120.476, 7, -53.656),
    (108.476, 7, -53.656),
    (124.72, 7, -56.072),
    (120.743, 7, -55.391),
    (108.209, 7, -55.391),
    (104.232, 7, -56.072),
    (97.03, 7, -57.489),
    (92.009, 7, -58.524),
]))
fillet2.Radius = 0.3

doc.recompute()
